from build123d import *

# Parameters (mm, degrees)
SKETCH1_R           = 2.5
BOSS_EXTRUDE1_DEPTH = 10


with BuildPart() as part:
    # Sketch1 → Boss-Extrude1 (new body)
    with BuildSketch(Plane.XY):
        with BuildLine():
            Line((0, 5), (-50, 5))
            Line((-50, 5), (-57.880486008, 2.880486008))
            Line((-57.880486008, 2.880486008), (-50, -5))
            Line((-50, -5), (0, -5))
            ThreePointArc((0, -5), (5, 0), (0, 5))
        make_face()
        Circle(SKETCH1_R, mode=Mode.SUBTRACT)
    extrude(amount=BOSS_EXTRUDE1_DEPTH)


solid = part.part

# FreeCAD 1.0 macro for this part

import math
import FreeCAD as App
import Part
import Sketcher

V = App.Vector
Q = App.Units.Quantity

doc = App.newDocument("Part")
body = doc.addObject("PartDesign::Body", "Body")

# Sketch on XY plane
sketch1 = body.newObject("Sketcher::SketchObject", "Sketch")
sketch1.AttachmentSupport = (doc.getObject("XY_Plane"), [""])
sketch1.MapMode = "FlatFace"
sketch1.addGeometry([
    Part.LineSegment(V(0, 5, 0), V(-50, 5, 0)),  # 0
    Part.LineSegment(V(-50, 5, 0), V(-57.880486, 2.880486, 0)),  # 1
    Part.LineSegment(V(-57.880486, 2.880486, 0), V(-50, -5, 0)),  # 2
    Part.LineSegment(V(-50, -5, 0), V(0, -5, 0)),  # 3
    Part.ArcOfCircle(Part.Circle(V(0, 0, 0), V(0, 0, 1), 5), math.radians(-90), math.radians(90)),  # 4
    Part.Circle(V(0, 0, 0), V(0, 0, 1), 2.5),  # 5
], False)
sketch1.addConstraint([
    Sketcher.Constraint("Coincident", 0, 2, 1, 1),
    Sketcher.Constraint("Coincident", 1, 2, 2, 1),
    Sketcher.Constraint("Coincident", 2, 2, 3, 1),
    Sketcher.Constraint("Tangent", 3, 2, 4, 1),
    Sketcher.Constraint("Tangent", 4, 2, 0, 1),
    Sketcher.Constraint("Horizontal", 0),
    Sketcher.Constraint("Horizontal", 3),
    Sketcher.Constraint("Coincident", 4, 3, -1, 1),
    Sketcher.Constraint("Coincident", 5, 3, -1, 1),
    Sketcher.Constraint("Vertical", 0, 2, 2, 2),
    Sketcher.Constraint("Diameter", 5, 5.0),
    Sketcher.Constraint("Radius", 4, 5.0),
    Sketcher.Constraint("DistanceX", 0, 2, 0, 1, 50.0),
    Sketcher.Constraint("Angle", 2, Q("-45 deg")),
    Sketcher.Constraint("Distance", 1, 8.160539),
])
pad1 = body.newObject("PartDesign::Pad", "Pad")
pad1.Profile = sketch1
pad1.Length = 10

doc.recompute()
